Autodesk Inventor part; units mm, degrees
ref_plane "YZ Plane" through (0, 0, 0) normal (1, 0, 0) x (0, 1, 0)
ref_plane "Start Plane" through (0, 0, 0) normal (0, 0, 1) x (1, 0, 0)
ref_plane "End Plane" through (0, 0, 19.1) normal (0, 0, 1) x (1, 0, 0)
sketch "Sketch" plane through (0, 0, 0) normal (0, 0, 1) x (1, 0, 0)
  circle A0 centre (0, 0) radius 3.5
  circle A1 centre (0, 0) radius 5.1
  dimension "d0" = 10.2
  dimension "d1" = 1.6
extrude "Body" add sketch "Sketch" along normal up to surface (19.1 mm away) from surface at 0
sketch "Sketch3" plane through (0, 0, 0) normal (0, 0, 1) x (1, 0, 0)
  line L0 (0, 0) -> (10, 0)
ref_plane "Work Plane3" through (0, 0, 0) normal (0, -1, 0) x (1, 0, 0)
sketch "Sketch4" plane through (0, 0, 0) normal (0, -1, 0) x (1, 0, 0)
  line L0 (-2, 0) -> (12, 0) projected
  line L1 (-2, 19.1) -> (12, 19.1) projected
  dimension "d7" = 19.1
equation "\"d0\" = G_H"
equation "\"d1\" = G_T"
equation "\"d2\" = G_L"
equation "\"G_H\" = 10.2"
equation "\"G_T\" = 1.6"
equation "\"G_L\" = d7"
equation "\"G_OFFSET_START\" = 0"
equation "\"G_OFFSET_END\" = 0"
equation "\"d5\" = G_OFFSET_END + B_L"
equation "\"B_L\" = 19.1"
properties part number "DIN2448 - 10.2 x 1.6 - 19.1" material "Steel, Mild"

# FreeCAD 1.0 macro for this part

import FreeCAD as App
import Part
import Sketcher

doc = App.newDocument("Part")
params = doc.addObject("Spreadsheet::Sheet", "Params")
for row, (alias, value) in enumerate([
    ("sketch1_diameter", "10.2 mm"),
    ("sketch1_diameter2", "7 mm"),
    ("pad1_length", "19.1 mm"),
], start=1):
    params.set(f"A{row}", alias)
    params.set(f"B{row}", "=" + value)
    params.setAlias(f"B{row}", alias)

body = doc.addObject("PartDesign::Body", "Body")

sketch1 = doc.addObject("Sketcher::SketchObject", "Sketch")
body.addObject(sketch1)
sketch1.AttachmentSupport = (doc.XY_Plane, [""])
sketch1.MapMode = "FlatFace"
sketch1.addGeometry([
    Part.Circle(App.Vector(0, 0, 0), App.Vector(0, 0, 1), 5.1),
    Part.Circle(App.Vector(0, 0, 0), App.Vector(0, 0, 1), 3.5),
], False)
sketch1.addConstraint([
    Sketcher.Constraint("Coincident", 0, 3, -1, 1),
    Sketcher.Constraint("Coincident", 1, 3, -1, 1),
    Sketcher.Constraint("Diameter", 0, 10.2),
    Sketcher.Constraint("Diameter", 1, 7.0),
])
sketch1.setExpression("Constraints[2]", "Params.sketch1_diameter")
sketch1.setExpression("Constraints[3]", "Params.sketch1_diameter2")
pad1 = doc.addObject("PartDesign::Pad", "Pad")
body.addObject(pad1)
pad1.Profile = sketch1
pad1.setExpression("Length", "Params.pad1_length")

doc.recompute()
